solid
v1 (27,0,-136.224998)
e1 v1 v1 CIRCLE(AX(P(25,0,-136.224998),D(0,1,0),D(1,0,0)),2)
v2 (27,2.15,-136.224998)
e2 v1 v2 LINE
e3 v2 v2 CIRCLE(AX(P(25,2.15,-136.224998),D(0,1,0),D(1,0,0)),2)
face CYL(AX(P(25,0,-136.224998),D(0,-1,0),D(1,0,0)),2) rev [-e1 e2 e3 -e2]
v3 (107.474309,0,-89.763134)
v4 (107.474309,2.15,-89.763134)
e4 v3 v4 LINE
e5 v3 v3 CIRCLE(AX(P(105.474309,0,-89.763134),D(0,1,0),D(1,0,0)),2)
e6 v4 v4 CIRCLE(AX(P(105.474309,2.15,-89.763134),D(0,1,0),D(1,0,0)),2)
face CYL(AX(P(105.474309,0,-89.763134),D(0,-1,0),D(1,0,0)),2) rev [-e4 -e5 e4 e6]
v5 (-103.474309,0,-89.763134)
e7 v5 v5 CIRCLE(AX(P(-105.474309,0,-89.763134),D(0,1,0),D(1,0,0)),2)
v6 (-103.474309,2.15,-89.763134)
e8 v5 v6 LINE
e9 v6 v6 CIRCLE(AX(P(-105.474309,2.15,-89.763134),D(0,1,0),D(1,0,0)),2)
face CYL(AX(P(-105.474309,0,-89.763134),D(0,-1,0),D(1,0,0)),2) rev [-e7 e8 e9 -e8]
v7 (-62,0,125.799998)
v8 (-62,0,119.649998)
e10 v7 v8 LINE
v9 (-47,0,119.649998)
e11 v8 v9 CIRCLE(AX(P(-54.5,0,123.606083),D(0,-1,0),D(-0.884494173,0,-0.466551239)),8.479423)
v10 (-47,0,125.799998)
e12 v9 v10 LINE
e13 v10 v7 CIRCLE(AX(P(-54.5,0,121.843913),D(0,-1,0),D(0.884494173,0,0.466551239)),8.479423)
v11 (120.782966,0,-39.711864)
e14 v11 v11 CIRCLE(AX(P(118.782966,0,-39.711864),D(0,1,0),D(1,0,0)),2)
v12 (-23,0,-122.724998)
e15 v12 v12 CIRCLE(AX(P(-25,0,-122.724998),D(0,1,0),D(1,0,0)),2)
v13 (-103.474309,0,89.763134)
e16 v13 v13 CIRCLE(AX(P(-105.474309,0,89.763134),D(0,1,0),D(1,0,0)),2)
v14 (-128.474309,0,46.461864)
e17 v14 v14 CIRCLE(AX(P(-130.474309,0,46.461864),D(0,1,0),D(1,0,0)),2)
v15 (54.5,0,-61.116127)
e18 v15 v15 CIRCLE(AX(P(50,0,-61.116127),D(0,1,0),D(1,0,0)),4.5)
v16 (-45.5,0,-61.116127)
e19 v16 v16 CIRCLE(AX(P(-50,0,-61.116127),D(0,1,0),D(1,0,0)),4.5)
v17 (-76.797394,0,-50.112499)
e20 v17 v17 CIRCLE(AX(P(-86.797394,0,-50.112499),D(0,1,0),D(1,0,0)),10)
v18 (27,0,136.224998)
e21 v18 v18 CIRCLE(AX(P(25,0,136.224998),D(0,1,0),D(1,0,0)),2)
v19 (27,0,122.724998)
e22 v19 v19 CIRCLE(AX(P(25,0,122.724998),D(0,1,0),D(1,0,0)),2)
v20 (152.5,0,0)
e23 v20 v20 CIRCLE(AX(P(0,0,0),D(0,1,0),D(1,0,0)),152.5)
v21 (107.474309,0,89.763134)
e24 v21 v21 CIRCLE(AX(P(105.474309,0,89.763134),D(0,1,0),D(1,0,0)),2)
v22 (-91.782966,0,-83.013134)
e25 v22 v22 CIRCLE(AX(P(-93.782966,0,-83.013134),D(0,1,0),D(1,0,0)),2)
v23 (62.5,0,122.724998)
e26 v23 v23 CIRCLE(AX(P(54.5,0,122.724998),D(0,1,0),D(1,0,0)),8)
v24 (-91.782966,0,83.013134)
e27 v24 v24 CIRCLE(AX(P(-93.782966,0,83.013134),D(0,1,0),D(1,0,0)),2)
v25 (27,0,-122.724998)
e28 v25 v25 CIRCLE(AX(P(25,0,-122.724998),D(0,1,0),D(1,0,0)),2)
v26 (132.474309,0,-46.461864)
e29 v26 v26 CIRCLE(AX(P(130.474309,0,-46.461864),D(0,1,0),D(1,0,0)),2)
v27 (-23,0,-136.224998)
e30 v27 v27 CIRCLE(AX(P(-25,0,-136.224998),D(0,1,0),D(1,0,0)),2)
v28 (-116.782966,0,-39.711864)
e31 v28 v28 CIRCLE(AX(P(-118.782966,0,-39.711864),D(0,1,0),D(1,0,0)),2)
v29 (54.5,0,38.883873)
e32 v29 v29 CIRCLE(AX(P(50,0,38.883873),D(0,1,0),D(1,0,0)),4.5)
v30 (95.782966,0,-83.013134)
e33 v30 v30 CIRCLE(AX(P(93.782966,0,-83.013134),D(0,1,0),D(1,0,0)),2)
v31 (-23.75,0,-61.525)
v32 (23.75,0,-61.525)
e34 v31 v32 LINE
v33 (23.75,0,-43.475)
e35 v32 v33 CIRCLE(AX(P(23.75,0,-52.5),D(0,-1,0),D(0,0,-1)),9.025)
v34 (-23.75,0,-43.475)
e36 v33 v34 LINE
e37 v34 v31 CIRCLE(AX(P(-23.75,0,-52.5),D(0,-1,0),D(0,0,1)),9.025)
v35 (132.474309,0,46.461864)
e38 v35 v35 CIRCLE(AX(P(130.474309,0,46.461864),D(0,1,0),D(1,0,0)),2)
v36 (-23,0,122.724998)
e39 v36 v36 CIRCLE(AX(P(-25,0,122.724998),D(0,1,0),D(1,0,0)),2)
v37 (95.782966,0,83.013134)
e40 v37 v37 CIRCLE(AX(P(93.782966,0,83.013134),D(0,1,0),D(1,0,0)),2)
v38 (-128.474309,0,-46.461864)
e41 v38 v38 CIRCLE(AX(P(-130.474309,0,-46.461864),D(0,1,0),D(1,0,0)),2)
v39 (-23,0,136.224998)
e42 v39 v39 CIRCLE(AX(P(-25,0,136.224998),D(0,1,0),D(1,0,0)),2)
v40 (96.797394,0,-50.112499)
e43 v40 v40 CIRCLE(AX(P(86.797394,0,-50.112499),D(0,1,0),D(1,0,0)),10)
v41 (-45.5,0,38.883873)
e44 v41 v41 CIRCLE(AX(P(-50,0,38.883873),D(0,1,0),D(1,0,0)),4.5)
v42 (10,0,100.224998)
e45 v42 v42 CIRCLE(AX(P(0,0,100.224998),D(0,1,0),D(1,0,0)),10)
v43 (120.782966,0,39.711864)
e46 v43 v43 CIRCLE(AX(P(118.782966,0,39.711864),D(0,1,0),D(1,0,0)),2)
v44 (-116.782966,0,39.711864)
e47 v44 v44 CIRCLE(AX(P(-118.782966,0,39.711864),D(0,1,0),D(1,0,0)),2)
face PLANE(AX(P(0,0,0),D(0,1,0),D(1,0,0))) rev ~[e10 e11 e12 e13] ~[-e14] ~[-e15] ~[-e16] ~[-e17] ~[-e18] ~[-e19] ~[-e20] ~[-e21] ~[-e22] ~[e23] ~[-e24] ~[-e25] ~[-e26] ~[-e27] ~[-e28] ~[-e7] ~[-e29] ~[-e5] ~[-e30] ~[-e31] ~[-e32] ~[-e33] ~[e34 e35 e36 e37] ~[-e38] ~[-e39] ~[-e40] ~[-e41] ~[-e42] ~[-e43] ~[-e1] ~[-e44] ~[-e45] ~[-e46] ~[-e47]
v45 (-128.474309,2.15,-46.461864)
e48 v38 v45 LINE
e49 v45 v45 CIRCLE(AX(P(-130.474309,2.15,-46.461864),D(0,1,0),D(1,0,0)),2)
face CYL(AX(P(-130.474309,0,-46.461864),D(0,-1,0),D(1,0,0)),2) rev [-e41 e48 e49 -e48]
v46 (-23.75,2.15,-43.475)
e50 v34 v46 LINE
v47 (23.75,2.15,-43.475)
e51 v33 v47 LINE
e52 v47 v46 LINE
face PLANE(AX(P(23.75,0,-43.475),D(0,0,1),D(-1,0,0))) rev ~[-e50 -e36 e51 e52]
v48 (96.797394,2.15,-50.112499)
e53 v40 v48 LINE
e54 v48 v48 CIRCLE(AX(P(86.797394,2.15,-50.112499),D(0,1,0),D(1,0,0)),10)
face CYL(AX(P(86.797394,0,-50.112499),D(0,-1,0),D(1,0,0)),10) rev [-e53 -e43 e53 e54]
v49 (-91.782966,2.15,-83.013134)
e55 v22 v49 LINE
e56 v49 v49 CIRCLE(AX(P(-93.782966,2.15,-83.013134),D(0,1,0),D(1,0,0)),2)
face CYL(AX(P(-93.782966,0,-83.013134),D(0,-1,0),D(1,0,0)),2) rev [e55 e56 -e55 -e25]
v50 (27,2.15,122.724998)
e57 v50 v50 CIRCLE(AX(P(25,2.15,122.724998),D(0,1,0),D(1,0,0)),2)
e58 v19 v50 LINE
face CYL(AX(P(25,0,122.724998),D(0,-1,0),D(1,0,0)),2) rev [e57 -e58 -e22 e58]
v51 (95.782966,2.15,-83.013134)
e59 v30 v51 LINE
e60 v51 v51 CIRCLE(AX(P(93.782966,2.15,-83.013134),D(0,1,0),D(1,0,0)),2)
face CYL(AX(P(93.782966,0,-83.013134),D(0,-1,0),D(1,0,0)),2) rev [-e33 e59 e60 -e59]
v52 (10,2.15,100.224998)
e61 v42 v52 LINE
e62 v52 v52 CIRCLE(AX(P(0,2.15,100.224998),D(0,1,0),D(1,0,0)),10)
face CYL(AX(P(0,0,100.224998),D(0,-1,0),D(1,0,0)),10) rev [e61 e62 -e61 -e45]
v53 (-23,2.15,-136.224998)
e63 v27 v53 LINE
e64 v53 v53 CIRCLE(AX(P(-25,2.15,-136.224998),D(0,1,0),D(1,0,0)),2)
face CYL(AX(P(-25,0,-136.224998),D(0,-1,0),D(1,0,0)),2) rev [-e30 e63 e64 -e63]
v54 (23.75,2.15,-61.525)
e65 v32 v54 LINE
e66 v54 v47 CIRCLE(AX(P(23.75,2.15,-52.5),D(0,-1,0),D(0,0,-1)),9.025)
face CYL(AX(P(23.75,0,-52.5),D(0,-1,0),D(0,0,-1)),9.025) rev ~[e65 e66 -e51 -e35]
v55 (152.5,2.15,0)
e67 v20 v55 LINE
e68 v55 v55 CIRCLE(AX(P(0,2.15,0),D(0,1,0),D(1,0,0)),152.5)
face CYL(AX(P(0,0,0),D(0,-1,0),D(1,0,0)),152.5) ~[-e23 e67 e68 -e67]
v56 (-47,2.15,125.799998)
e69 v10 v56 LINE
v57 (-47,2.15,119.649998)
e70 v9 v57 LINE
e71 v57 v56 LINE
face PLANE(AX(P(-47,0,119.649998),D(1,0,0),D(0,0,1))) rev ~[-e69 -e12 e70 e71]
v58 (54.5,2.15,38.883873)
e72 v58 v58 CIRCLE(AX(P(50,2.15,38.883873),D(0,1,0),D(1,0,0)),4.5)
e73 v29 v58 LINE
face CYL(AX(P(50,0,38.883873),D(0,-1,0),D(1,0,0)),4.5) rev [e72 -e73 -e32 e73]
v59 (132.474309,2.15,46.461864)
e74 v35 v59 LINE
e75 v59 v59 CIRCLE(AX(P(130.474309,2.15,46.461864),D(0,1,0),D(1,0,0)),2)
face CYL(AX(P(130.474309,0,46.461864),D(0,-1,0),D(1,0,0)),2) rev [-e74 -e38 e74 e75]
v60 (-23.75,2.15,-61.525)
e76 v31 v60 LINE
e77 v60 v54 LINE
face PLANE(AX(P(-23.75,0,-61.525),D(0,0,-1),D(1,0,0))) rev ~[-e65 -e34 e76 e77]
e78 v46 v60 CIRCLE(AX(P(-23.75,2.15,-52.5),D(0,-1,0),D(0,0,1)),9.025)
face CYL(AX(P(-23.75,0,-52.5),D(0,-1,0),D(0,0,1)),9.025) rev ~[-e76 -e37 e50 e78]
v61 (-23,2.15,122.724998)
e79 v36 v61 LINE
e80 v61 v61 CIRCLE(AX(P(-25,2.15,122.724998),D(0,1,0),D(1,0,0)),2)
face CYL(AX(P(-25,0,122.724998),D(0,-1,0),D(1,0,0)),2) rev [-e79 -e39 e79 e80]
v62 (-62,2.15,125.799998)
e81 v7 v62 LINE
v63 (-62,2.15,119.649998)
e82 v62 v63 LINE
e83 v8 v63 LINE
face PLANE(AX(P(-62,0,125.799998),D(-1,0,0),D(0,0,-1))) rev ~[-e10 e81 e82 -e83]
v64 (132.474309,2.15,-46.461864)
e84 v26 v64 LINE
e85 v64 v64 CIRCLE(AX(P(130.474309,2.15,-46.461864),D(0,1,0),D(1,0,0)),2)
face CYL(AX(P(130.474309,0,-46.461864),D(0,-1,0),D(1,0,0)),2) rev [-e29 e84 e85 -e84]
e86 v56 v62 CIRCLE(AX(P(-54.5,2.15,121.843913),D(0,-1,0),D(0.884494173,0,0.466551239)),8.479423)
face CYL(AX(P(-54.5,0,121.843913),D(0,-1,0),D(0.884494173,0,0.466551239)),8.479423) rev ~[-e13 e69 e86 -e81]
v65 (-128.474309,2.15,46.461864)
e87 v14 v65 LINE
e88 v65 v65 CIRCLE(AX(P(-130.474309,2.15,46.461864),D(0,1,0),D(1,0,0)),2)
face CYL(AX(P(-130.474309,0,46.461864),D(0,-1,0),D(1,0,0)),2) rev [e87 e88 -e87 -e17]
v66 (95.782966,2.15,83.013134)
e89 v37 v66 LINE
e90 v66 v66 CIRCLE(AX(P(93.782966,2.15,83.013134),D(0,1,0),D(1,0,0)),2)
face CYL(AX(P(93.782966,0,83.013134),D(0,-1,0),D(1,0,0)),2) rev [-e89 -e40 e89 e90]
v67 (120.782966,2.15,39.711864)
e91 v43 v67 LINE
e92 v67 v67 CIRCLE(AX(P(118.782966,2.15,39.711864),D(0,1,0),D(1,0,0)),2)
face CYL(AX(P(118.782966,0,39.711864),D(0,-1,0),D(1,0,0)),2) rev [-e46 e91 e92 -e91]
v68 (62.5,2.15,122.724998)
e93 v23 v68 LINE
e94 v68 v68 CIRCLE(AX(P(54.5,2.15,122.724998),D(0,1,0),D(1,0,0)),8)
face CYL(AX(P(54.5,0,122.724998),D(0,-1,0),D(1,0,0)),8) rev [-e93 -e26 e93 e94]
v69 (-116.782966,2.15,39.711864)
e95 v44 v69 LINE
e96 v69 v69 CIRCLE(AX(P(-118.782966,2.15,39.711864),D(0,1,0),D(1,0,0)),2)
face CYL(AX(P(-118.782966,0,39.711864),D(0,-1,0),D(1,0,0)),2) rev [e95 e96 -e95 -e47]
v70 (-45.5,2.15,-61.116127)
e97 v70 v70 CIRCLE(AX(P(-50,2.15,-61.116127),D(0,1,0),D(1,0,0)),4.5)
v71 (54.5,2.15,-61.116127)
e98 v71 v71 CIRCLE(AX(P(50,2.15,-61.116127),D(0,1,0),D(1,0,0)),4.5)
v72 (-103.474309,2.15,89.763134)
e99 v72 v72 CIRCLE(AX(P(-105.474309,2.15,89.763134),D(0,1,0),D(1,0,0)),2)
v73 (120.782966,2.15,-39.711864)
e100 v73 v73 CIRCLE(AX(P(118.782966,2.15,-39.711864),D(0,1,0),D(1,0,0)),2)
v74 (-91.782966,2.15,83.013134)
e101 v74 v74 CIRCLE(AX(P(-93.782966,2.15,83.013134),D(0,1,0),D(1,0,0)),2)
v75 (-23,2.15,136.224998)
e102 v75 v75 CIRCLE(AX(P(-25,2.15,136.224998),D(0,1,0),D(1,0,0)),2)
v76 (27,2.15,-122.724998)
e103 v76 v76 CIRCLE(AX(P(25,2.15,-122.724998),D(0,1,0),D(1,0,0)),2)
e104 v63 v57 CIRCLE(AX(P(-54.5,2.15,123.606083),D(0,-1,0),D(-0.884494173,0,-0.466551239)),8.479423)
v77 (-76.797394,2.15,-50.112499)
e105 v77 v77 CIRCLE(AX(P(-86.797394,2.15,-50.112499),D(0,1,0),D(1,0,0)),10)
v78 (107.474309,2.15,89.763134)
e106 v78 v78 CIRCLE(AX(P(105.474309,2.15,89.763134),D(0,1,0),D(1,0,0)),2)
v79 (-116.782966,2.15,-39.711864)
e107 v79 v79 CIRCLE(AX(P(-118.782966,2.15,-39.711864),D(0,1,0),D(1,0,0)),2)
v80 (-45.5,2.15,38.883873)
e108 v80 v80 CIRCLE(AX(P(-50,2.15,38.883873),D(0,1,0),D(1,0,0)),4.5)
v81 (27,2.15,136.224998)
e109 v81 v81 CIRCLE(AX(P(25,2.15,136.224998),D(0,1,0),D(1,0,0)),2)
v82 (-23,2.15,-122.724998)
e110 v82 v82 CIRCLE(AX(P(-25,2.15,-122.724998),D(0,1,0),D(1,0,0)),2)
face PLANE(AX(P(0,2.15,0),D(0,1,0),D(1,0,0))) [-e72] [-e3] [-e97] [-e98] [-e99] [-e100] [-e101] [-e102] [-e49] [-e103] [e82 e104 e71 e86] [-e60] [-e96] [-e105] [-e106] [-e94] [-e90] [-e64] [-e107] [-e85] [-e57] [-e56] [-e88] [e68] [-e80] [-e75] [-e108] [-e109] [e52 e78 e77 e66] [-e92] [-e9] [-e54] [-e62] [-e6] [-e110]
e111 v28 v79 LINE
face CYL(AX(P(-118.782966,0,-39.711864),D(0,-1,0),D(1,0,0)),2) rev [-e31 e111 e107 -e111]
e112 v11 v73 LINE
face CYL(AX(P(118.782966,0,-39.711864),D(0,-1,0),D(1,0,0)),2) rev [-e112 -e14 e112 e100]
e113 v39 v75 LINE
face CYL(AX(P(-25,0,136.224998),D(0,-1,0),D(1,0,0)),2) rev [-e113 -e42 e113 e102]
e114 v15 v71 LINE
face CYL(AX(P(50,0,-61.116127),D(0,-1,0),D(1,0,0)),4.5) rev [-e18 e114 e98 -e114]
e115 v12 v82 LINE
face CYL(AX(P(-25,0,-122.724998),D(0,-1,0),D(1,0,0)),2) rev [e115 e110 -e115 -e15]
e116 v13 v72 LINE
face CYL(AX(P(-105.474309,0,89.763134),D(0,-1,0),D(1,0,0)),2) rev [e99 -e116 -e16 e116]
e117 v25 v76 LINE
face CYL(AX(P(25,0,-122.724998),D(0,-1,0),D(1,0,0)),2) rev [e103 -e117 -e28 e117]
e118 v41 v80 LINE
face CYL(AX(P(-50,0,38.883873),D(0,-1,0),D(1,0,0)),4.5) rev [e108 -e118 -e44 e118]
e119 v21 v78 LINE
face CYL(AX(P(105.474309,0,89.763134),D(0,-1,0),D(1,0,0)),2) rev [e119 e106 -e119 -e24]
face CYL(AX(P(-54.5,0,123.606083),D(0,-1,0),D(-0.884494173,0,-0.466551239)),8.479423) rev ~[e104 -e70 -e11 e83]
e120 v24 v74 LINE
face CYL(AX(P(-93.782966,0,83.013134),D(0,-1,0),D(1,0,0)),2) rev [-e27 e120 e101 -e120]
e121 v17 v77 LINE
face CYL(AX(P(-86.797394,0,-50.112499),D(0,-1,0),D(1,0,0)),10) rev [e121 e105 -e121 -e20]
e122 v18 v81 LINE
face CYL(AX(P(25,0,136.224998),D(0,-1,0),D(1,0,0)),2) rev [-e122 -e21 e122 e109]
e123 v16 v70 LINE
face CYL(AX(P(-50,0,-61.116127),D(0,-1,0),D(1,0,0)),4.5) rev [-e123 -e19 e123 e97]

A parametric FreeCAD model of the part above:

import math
import FreeCAD as App
import Part
import Sketcher

V = App.Vector
Q = App.Units.Quantity

doc = App.newDocument("Part")
params = doc.addObject("Spreadsheet::Sheet", "Params")
for row, (alias, value) in enumerate([
    ("sketch1_diameter", "305 mm"),
    ("sketch1_diameter2", "4 mm"),
    ("sketch1_diameter3", "9 mm"),
    ("sketch1_diameter4", "16 mm"),
    ("sketch1_diameter5", "20 mm"),
    ("pad1_length", "2.15 mm"),
], start=1):
    params.set(f"A{row}", alias)
    params.set(f"B{row}", "=" + value)
    params.setAlias(f"B{row}", alias)

body = doc.addObject("PartDesign::Body", "Body")

# Sketch on XZ plane
sketch1 = body.newObject("Sketcher::SketchObject", "Sketch")
sketch1.AttachmentSupport = (doc.getObject("XZ_Plane"), [""])
sketch1.MapMode = "FlatFace"
sketch1.addGeometry([
    Part.Circle(V(0, 0, 0), V(0, 0, 1), 152.5),  # 0
    Part.Circle(V(-105.5, 89.8, 0), V(0, 0, 1), 2),  # 1
    Part.Circle(V(-93.8, 83, 0), V(0, 0, 1), 2),  # 2
    Part.ArcOfCircle(Part.Circle(V(-54.5, 121.8, 0), V(0, 0, 1), 8.5), math.radians(28), math.radians(152)),  # 3
    Part.LineSegment(V(-62, 125.8, 0), V(-62, 119.6, 0)),  # 4
    Part.ArcOfCircle(Part.Circle(V(-54.5, 123.6, 0), V(0, 0, 1), 8.5), math.radians(-152), math.radians(-28)),  # 5
    Part.LineSegment(V(-47, 119.6, 0), V(-47, 125.8, 0)),  # 6
    Part.Circle(V(-25, 136.2, 0), V(0, 0, 1), 2),  # 7
    Part.Circle(V(-25, 122.7, 0), V(0, 0, 1), 2),  # 8
    Part.Circle(V(-130.5, 46.5, 0), V(0, 0, 1), 2),  # 9
    Part.Circle(V(-118.8, 39.7, 0), V(0, 0, 1), 2),  # 10
    Part.Circle(V(-50, 38.9, 0), V(0, 0, 1), 4.5),  # 11
    Part.Circle(V(25, 136.2, 0), V(0, 0, 1), 2),  # 12
    Part.Circle(V(25, 122.7, 0), V(0, 0, 1), 2),  # 13
    Part.Circle(V(54.5, 122.7, 0), V(0, 0, 1), 8),  # 14
    Part.Circle(V(0, 100.2, 0), V(0, 0, 1), 10),  # 15
    Part.Circle(V(93.8, 83, 0), V(0, 0, 1), 2),  # 16
    Part.Circle(V(105.5, 89.8, 0), V(0, 0, 1), 2),  # 17
    Part.Circle(V(50, 38.9, 0), V(0, 0, 1), 4.5),  # 18
    Part.Circle(V(130.5, 46.5, 0), V(0, 0, 1), 2),  # 19
    Part.Circle(V(118.8, 39.7, 0), V(0, 0, 1), 2),  # 20
    Part.Circle(V(-118.8, -39.7, 0), V(0, 0, 1), 2),  # 21
    Part.Circle(V(-130.5, -46.5, 0), V(0, 0, 1), 2),  # 22
    Part.Circle(V(-86.8, -50.1, 0), V(0, 0, 1), 10),  # 23
    Part.Circle(V(-50, -61.1, 0), V(0, 0, 1), 4.5),  # 24
    Part.Circle(V(-105.5, -89.8, 0), V(0, 0, 1), 2),  # 25
    Part.Circle(V(-93.8, -83, 0), V(0, 0, 1), 2),  # 26
    Part.Circle(V(-25, -122.7, 0), V(0, 0, 1), 2),  # 27
    Part.Circle(V(-25, -136.2, 0), V(0, 0, 1), 2),  # 28
    Part.ArcOfCircle(Part.Circle(V(-23.8, -52.5, 0), V(0, 0, 1), 9), math.radians(90), math.radians(270)),  # 29
    Part.LineSegment(V(-23.8, -61.5, 0), V(23.8, -61.5, 0)),  # 30
    Part.ArcOfCircle(Part.Circle(V(23.8, -52.5, 0), V(0, 0, 1), 9), math.radians(-90), math.radians(90)),  # 31
    Part.LineSegment(V(23.8, -43.5, 0), V(-23.8, -43.5, 0)),  # 32
    Part.Circle(V(50, -61.1, 0), V(0, 0, 1), 4.5),  # 33
    Part.Circle(V(86.8, -50.1, 0), V(0, 0, 1), 10),  # 34
    Part.Circle(V(118.8, -39.7, 0), V(0, 0, 1), 2),  # 35
    Part.Circle(V(130.5, -46.5, 0), V(0, 0, 1), 2),  # 36
    Part.Circle(V(25, -122.7, 0), V(0, 0, 1), 2),  # 37
    Part.Circle(V(25, -136.2, 0), V(0, 0, 1), 2),  # 38
    Part.Circle(V(93.8, -83, 0), V(0, 0, 1), 2),  # 39
    Part.Circle(V(105.5, -89.8, 0), V(0, 0, 1), 2),  # 40
], False)
sketch1.addConstraint([
    Sketcher.Constraint("Coincident", 3, 2, 4, 1),
    Sketcher.Constraint("Coincident", 4, 2, 5, 1),
    Sketcher.Constraint("Coincident", 5, 2, 6, 1),
    Sketcher.Constraint("Coincident", 6, 2, 3, 1),
    Sketcher.Constraint("Tangent", 29, 2, 30, 1),
    Sketcher.Constraint("Tangent", 30, 2, 31, 1),
    Sketcher.Constraint("Tangent", 31, 2, 32, 1),
    Sketcher.Constraint("Tangent", 32, 2, 29, 1),
    Sketcher.Constraint("Vertical", 4),
    Sketcher.Constraint("Vertical", 6),
    Sketcher.Constraint("Horizontal", 30),
    Sketcher.Constraint("Horizontal", 32),
    Sketcher.Constraint("Coincident", 0, 3, -1, 1),
    Sketcher.Constraint("Equal", 1, 2),
    Sketcher.Constraint("Equal", 3, 5),
    Sketcher.Constraint("Equal", 2, 7),
    Sketcher.Constraint("Equal", 7, 8),
    Sketcher.Constraint("Equal", 8, 9),
    Sketcher.Constraint("Equal", 9, 10),
    Sketcher.Constraint("Equal", 10, 12),
    Sketcher.Constraint("Equal", 12, 13),
    Sketcher.Constraint("Equal", 13, 16),
    Sketcher.Constraint("Equal", 16, 17),
    Sketcher.Constraint("Equal", 11, 18),
    Sketcher.Constraint("Equal", 17, 19),
    Sketcher.Constraint("Equal", 19, 20),
    Sketcher.Constraint("Equal", 20, 21),
    Sketcher.Constraint("Equal", 21, 22),
    Sketcher.Constraint("Equal", 15, 23),
    Sketcher.Constraint("Equal", 18, 24),
    Sketcher.Constraint("Equal", 22, 25),
    Sketcher.Constraint("Equal", 25, 26),
    Sketcher.Constraint("Equal", 26, 27),
    Sketcher.Constraint("Equal", 27, 28),
    Sketcher.Constraint("Equal", 24, 33),
    Sketcher.Constraint("Equal", 23, 34),
    Sketcher.Constraint("Equal", 28, 35),
    Sketcher.Constraint("Equal", 35, 36),
    Sketcher.Constraint("Equal", 36, 37),
    Sketcher.Constraint("Equal", 37, 38),
    Sketcher.Constraint("Equal", 38, 39),
    Sketcher.Constraint("Equal", 39, 40),
    Sketcher.Constraint("Symmetric", 20, 3, 21, 3, -1, 1),
    Sketcher.Constraint("Symmetric", 19, 3, 22, 3, -1, 1),
    Sketcher.Constraint("Symmetric", 17, 3, 25, 3, -1, 1),
    Sketcher.Constraint("Symmetric", 16, 3, 26, 3, -1, 1),
    Sketcher.Constraint("Symmetric", 13, 3, 27, 3, -1, 1),
    Sketcher.Constraint("Symmetric", 12, 3, 28, 3, -1, 1),
    Sketcher.Constraint("Symmetric", 10, 3, 35, 3, -1, 1),
    Sketcher.Constraint("Symmetric", 9, 3, 36, 3, -1, 1),
    Sketcher.Constraint("Symmetric", 8, 3, 37, 3, -1, 1),
    Sketcher.Constraint("Symmetric", 7, 3, 38, 3, -1, 1),
    Sketcher.Constraint("Symmetric", 2, 3, 39, 3, -1, 1),
    Sketcher.Constraint("Symmetric", 1, 3, 40, 3, -1, 1),
    Sketcher.Constraint("Symmetric", 7, 3, 12, 3, -2),
    Sketcher.Constraint("Symmetric", 8, 3, 13, 3, -2),
    Sketcher.Constraint("Symmetric", 2, 3, 16, 3, -2),
    Sketcher.Constraint("Symmetric", 1, 3, 17, 3, -2),
    Sketcher.Constraint("Symmetric", 11, 3, 18, 3, -2),
    Sketcher.Constraint("Symmetric", 9, 3, 19, 3, -2),
    Sketcher.Constraint("Symmetric", 10, 3, 20, 3, -2),
    Sketcher.Constraint("Symmetric", 24, 3, 33, 3, -2),
    Sketcher.Constraint("Symmetric", 23, 3, 34, 3, -2),
    Sketcher.Constraint("PointOnObject", 15, 3, -2),
    Sketcher.Constraint("Horizontal", 13, 3, 14, 3),
    Sketcher.Constraint("Horizontal", 4, 2, 5, 2),
    Sketcher.Constraint("Horizontal", 3, 2, 6, 2),
    Sketcher.Constraint("Vertical", 7, 3, 8, 3),
    Sketcher.Constraint("Vertical", 11, 3, 24, 3),
    Sketcher.Constraint("Diameter", 0, Q("305 mm")),
    Sketcher.Constraint("Diameter", 1, Q("4 mm")),
    Sketcher.Constraint("Diameter", 11, Q("9 mm")),
    Sketcher.Constraint("Diameter", 14, Q("16 mm")),
    Sketcher.Constraint("Diameter", 15, Q("20 mm")),
    Sketcher.Constraint("DistanceX", 30, 1, 30, 2, Q("47.5 mm")),
    Sketcher.Constraint("DistanceX", 7, 3, -1, 1, Q("25 mm")),
    Sketcher.Constraint("DistanceX", 11, 3, -1, 1, Q("50 mm")),
    Sketcher.Constraint("DistanceX", 3, 2, -1, 1, Q("62 mm")),
    Sketcher.Constraint("DistanceX", 5, 2, -1, 1, Q("47 mm")),
    Sketcher.Constraint("Radius", 29, Q("9.025 mm")),
    Sketcher.Constraint("DistanceX", 9, 3, 1, 3, Q("25 mm")),
    Sketcher.Constraint("DistanceX", 10, 3, 2, 3, Q("25 mm")),
    Sketcher.Constraint("DistanceX", 3, 3, 14, 3, Q("109 mm")),
    Sketcher.Constraint("DistanceY", 15, 3, 7, 3, Q("36 mm")),
    Sketcher.Constraint("DistanceY", 24, 3, 11, 3, Q("100 mm")),
    Sketcher.Constraint("DistanceY", 4, 2, 4, 1, Q("6.15 mm")),
    Sketcher.Constraint("DistanceY", 29, 3, -1, 1, Q("52.5 mm")),
    Sketcher.Constraint("DistanceY", 8, 3, 7, 3, Q("13.5 mm")),
    Sketcher.Constraint("DistanceX", 29, 3, -1, 1, Q("23.75 mm")),
    Sketcher.Constraint("DistanceY", 2, 3, 1, 3, Q("6.75 mm")),
    Sketcher.Constraint("DistanceY", 10, 3, 9, 3, Q("6.75 mm")),
    Sketcher.Constraint("Radius", 3, Q("8.479423 mm")),
    Sketcher.Constraint("DistanceY", 8, 3, 3, 2, Q("3.075 mm")),
    Sketcher.Constraint("DistanceY", 23, 3, -1, 1, Q("50.112499 mm")),
    Sketcher.Constraint("DistanceY", 27, 3, 23, 3, Q("72.612499 mm")),
    Sketcher.Constraint("DistanceX", 1, 3, -1, 1, Q("105.474309 mm")),
    Sketcher.Constraint("DistanceY", 2, 3, 3, 3, Q("38.830779 mm")),
    Sketcher.Constraint("DistanceY", 9, 3, 1, 3, Q("43.30127 mm")),
    Sketcher.Constraint("DistanceY", 11, 3, 2, 3, Q("44.129261 mm")),
    Sketcher.Constraint("DistanceX", 21, 3, 23, 3, Q("31.985572 mm")),
    Sketcher.Constraint("DistanceX", 2, 3, -1, 1, Q("93.782966 mm")),
])
sketch1.setExpression("Constraints[69]", "Params.sketch1_diameter")
sketch1.setExpression("Constraints[70]", "Params.sketch1_diameter2")
sketch1.setExpression("Constraints[71]", "Params.sketch1_diameter3")
sketch1.setExpression("Constraints[72]", "Params.sketch1_diameter4")
sketch1.setExpression("Constraints[73]", "Params.sketch1_diameter5")
pad1 = body.newObject("PartDesign::Pad", "Pad")
pad1.Profile = sketch1
pad1.setExpression("Length", "Params.pad1_length")
pad1.Reversed = True

doc.recompute()
